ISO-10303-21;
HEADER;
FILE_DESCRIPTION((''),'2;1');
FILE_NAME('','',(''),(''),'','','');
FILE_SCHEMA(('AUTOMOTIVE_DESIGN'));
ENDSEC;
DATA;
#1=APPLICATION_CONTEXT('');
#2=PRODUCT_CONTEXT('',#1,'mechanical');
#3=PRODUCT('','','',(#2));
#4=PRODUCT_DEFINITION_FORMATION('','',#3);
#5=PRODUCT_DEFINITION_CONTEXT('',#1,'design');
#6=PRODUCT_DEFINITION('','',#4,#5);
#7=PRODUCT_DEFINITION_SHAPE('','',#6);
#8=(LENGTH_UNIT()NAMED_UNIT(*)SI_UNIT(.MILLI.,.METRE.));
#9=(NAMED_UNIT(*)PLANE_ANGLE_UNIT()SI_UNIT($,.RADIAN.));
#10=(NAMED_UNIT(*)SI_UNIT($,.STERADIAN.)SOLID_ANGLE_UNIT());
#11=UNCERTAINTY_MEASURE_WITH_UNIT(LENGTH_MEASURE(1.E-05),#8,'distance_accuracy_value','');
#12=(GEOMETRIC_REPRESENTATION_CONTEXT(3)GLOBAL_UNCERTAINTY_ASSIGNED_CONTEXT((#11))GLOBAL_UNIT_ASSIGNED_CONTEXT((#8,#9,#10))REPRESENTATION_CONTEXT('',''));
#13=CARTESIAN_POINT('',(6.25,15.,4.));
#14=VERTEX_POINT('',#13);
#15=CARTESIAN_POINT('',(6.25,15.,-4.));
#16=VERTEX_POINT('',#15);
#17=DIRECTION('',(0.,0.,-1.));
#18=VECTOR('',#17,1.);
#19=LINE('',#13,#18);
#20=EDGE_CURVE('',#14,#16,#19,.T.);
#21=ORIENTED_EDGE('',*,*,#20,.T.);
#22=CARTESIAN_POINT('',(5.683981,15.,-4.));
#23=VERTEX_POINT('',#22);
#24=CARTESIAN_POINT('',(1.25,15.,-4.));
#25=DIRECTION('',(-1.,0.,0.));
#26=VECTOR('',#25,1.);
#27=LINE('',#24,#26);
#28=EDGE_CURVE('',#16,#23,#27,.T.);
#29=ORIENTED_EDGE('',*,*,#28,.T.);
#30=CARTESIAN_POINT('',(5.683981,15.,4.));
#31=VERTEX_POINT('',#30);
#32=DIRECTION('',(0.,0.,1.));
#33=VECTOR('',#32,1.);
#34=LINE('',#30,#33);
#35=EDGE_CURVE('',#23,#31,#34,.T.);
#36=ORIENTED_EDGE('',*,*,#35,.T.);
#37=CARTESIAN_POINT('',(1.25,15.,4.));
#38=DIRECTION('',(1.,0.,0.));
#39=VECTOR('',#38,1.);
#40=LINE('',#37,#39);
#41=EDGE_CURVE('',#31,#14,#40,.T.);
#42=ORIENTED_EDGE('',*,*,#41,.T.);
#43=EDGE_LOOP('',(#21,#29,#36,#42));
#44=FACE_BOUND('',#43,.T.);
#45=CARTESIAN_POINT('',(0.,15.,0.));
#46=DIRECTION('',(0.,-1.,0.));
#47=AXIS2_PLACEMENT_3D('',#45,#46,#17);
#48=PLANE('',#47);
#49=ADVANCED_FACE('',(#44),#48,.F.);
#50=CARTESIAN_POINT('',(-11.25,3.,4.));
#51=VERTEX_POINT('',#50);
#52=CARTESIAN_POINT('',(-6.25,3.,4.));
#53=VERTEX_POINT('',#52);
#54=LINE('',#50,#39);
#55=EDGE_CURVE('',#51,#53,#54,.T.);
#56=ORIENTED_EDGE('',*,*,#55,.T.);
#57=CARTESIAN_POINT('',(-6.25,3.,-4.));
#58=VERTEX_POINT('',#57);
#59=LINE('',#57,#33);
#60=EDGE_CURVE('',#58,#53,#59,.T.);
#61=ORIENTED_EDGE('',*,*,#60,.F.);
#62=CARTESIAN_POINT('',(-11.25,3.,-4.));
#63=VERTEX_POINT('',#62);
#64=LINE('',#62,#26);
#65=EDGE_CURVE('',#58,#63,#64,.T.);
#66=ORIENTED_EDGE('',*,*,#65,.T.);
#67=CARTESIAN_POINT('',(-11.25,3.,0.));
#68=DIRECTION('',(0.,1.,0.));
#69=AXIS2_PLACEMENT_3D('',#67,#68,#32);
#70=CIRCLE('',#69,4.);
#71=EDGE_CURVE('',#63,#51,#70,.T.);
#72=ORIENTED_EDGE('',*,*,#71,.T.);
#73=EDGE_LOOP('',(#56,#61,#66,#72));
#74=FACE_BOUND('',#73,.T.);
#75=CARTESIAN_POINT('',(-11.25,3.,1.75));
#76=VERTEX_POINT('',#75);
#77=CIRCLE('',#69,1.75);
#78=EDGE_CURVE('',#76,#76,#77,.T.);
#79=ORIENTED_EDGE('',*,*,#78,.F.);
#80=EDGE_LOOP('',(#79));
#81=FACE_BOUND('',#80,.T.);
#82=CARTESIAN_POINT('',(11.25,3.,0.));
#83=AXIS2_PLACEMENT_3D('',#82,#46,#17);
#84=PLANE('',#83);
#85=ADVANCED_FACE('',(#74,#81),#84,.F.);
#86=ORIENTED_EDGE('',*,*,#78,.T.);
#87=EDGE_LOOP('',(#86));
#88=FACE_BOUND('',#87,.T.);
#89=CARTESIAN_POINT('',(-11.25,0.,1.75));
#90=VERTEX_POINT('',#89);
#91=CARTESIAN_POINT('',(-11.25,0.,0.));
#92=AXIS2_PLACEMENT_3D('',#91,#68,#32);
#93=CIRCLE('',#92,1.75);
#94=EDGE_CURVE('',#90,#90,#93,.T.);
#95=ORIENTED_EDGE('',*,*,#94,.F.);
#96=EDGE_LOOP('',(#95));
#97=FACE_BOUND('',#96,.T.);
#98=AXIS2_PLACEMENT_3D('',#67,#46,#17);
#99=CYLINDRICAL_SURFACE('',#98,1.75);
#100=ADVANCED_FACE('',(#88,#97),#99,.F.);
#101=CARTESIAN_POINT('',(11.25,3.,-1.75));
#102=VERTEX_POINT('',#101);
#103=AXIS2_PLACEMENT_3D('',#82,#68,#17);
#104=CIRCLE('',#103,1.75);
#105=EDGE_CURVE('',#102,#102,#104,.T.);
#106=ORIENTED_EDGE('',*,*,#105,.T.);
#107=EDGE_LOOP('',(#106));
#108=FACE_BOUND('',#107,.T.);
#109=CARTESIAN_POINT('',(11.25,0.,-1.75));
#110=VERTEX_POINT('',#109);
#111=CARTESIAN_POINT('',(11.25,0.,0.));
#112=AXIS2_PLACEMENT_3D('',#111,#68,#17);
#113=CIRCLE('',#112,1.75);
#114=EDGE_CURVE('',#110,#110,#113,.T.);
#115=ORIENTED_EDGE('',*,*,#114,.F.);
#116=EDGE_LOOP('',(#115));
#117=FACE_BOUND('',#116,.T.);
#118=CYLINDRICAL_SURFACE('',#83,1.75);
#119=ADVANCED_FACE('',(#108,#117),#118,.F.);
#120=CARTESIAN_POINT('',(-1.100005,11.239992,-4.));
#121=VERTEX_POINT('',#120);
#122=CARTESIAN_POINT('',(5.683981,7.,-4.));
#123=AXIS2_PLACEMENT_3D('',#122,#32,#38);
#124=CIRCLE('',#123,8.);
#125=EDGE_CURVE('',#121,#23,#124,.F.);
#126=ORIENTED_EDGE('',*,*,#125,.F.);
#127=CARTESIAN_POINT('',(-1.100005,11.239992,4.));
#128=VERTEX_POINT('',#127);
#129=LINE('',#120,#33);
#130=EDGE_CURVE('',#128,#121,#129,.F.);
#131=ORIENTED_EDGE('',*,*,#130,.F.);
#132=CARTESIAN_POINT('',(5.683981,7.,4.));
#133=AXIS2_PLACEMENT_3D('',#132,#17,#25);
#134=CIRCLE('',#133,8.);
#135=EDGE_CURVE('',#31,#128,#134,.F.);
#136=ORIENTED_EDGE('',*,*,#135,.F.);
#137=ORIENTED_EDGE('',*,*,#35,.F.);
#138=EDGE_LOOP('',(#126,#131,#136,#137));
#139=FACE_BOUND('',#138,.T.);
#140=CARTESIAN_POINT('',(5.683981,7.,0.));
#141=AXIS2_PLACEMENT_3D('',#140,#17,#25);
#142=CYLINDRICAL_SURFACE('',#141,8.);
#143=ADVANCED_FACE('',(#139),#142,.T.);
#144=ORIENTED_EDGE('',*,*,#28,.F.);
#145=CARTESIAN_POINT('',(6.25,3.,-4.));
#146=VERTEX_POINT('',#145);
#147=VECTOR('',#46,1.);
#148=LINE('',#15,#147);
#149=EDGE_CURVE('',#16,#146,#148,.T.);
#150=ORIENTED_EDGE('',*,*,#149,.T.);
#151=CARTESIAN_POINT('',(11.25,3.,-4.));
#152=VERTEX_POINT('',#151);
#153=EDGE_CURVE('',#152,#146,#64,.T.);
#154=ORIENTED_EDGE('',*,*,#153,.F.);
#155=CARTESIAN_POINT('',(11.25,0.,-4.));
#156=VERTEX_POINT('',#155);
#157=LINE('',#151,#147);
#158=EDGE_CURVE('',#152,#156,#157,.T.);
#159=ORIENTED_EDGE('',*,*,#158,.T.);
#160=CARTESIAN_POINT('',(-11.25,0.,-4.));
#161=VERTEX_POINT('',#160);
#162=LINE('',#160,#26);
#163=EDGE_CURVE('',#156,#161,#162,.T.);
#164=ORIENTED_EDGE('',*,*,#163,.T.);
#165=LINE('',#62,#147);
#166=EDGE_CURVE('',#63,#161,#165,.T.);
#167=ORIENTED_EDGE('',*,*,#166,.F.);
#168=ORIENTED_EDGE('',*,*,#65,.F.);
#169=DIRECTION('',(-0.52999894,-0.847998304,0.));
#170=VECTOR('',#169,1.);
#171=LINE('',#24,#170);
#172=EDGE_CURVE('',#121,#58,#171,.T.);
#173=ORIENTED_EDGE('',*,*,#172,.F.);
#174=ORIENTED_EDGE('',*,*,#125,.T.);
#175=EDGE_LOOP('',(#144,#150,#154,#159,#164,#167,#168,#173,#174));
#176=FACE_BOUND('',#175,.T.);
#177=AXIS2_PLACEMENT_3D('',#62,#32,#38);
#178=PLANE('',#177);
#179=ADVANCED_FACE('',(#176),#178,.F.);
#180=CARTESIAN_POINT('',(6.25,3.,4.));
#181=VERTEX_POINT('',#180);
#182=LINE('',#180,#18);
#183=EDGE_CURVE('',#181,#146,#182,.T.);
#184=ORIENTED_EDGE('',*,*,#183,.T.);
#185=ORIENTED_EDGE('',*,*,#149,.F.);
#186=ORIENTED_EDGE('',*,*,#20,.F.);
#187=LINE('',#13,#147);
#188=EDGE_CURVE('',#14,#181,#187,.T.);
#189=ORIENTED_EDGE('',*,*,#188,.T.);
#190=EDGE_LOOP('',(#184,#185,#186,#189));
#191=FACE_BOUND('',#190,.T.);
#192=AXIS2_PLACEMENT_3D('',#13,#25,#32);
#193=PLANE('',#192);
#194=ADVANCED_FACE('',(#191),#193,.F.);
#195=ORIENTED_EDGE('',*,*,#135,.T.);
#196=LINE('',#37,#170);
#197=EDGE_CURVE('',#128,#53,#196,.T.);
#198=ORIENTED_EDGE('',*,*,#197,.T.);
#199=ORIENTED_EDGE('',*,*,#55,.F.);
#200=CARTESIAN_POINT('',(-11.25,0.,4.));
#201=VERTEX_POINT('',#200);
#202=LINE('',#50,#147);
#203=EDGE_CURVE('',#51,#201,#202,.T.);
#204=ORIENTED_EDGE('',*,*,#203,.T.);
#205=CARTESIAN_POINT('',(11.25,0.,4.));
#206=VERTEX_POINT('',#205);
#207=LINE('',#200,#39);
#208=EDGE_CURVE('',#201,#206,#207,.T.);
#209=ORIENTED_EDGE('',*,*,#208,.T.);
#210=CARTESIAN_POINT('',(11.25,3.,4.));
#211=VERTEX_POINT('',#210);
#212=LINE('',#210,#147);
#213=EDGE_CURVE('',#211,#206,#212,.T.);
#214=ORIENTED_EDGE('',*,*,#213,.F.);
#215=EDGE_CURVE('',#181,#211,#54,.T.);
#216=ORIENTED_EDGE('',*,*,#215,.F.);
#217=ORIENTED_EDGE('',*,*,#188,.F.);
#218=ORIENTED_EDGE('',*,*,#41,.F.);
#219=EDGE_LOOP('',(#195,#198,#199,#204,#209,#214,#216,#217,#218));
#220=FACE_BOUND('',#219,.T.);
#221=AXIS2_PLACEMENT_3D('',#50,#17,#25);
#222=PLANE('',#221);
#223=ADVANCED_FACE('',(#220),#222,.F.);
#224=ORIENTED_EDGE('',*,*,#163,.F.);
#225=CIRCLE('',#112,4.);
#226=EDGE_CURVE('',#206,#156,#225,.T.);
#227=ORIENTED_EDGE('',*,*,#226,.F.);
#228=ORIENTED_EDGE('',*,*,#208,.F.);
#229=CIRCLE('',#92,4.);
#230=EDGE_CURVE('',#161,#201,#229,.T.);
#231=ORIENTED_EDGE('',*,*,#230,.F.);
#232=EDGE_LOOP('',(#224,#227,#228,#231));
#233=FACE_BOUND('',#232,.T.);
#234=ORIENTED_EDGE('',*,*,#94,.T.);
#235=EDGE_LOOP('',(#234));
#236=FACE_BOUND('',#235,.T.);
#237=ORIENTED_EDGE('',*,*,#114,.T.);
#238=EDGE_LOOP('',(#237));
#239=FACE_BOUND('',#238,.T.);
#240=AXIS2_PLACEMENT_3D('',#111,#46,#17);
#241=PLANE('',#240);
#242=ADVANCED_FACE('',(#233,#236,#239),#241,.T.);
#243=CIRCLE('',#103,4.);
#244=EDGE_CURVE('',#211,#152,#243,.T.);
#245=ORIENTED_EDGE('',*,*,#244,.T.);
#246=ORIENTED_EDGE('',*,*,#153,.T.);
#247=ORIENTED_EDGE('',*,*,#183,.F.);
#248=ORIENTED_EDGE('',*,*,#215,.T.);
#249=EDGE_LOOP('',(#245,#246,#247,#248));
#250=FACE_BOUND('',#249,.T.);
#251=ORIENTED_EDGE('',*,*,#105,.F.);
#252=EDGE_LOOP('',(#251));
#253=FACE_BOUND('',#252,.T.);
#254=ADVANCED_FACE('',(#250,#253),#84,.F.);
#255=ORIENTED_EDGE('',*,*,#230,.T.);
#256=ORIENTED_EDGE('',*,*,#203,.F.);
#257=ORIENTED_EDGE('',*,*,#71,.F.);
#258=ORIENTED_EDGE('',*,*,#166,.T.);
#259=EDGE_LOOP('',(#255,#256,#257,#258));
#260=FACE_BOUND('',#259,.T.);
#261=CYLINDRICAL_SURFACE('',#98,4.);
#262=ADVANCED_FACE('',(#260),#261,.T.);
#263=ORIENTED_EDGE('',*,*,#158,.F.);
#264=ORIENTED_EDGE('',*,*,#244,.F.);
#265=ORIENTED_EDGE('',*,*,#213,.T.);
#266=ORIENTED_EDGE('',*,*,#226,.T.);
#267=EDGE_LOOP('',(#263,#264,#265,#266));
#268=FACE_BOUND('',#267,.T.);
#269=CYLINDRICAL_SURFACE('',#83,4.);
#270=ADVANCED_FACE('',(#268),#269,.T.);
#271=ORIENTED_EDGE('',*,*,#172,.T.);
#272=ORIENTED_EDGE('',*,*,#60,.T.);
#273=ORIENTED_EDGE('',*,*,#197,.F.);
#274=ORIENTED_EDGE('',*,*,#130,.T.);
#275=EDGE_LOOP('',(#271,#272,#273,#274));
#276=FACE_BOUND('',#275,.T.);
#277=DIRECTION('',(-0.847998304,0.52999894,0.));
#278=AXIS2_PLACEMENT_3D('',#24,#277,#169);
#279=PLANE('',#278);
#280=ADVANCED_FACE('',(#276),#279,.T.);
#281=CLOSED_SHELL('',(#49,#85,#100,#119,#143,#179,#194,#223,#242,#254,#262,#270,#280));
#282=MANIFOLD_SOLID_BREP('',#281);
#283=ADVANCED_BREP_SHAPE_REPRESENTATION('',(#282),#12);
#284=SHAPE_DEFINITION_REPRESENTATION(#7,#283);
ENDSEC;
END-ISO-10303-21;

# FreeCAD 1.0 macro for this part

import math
import FreeCAD as App
import Part
import Sketcher

V = App.Vector
Q = App.Units.Quantity


def edges_at(feature, points):
    """Names of the edges that pass closest to the given points."""
    edges = feature.Shape.Edges
    near = lambda p: min(range(len(edges)), key=lambda i: edges[i].distToShape(Part.Vertex(*p))[0])
    return sorted({f"Edge{near(p) + 1}" for p in points})


def add_polygon(sketch, points):
    """Adds a closed chain of lines whose ends are joined by coincident constraints."""
    first, n = sketch.GeometryCount, len(points)
    for a, b in zip(points, points[1:] + points[:1]):
        sketch.addGeometry(Part.LineSegment(App.Vector(*a, 0), App.Vector(*b, 0)), False)
    for i in range(n):
        sketch.addConstraint(Sketcher.Constraint("Coincident", first + i, 2, first + (i + 1) % n, 1))

doc = App.newDocument("Part")
body = doc.addObject("PartDesign::Body", "Body")

sketch1 = body.newObject("Sketcher::SketchObject", "Sketch")
sketch1.AttachmentSupport = (doc.getObject("XZ_Plane"), [""])
sketch1.MapMode = "FlatFace"
sketch1.addGeometry([
    Part.LineSegment(V(-11.2, 4, 0), V(11.2, 4, 0)),
    Part.ArcOfCircle(Part.Circle(V(11.2, 0, 0), V(0, 0, 1), 4), math.radians(-90), math.radians(90)),
    Part.LineSegment(V(11.2, -4, 0), V(-11.2, -4, 0)),
    Part.ArcOfCircle(Part.Circle(V(-11.2, 0, 0), V(0, 0, 1), 4), math.radians(90), math.radians(270)),
    Part.Circle(V(-11.2, 0, 0), V(0, 0, 1), 1.8),
    Part.Circle(V(11.2, 0, 0), V(0, 0, 1), 1.8),
], False)
sketch1.addConstraint([
    Sketcher.Constraint("Tangent", 0, 2, 1, 2),
    Sketcher.Constraint("Tangent", 1, 1, 2, 1),
    Sketcher.Constraint("Tangent", 2, 2, 3, 2),
    Sketcher.Constraint("Tangent", 3, 1, 0, 1),
    Sketcher.Constraint("Horizontal", 0),
    Sketcher.Constraint("Horizontal", 2),
    Sketcher.Constraint("Coincident", 4, 3, 3, 3),
    Sketcher.Constraint("Coincident", 5, 3, 1, 3),
    Sketcher.Constraint("Equal", 4, 5),
    Sketcher.Constraint("Symmetric", 1, 3, 3, 3, -1, 1),
    Sketcher.Constraint("Radius", 1, Q("4 mm")),
    Sketcher.Constraint("Diameter", 4, Q("3.5 mm")),
    Sketcher.Constraint("DistanceX", 0, 1, 0, 2, Q("22.5 mm")),
])
pad1 = body.newObject("PartDesign::Pad", "Pad")
pad1.Profile = sketch1
pad1.Length = 3
pad1.Reversed = True

sketch2 = body.newObject("Sketcher::SketchObject", "Sketch001")
sketch2.AttachmentSupport = (doc.getObject("XZ_Plane"), [""])
sketch2.MapMode = "FlatFace"
sketch2.AttachmentOffset = App.Placement(V(0, 0, -3), App.Rotation())
add_polygon(sketch2, [(1, -4), (1, 4), (6, 4), (6, -4)])
sketch2.addConstraint([
    Sketcher.Constraint("Vertical", 0),
    Sketcher.Constraint("Horizontal", 1),
    Sketcher.Constraint("Vertical", 2),
    Sketcher.Constraint("Horizontal", 3),
    Sketcher.Constraint("DistanceX", 1, 1, 1, 2, Q("5 mm")),
    Sketcher.Constraint("DistanceY", 0, 1, 0, 2, Q("8 mm")),
    Sketcher.Constraint("DistanceY", -1, 1, 0, 2, Q("4 mm")),
    Sketcher.Constraint("DistanceX", -1, 1, 0, 2, Q("1.25 mm")),
])
pad2 = body.newObject("PartDesign::Pad", "Pad001")
pad2.Profile = sketch2
pad2.Length = 12
pad2.Reversed = True

sketch3 = body.newObject("Sketcher::SketchObject", "Sketch002")
sketch3.AttachmentSupport = (doc.getObject("XY_Plane"), [""])
sketch3.MapMode = "FlatFace"
sketch3.AttachmentOffset = App.Placement(V(0, 0, 4), App.Rotation())
add_polygon(sketch3, [(1, 15), (-6, 3), (1, 3)])
sketch3.addConstraint([
    Sketcher.Constraint("Horizontal", 1),
    Sketcher.Constraint("Vertical", 2),
    Sketcher.Constraint("DistanceY", 2, 1, 2, 2, Q("12 mm")),
    Sketcher.Constraint("DistanceX", 1, 1, 1, 2, Q("7.5 mm")),
    Sketcher.Constraint("DistanceY", -1, 1, 0, 2, Q("3 mm")),
    Sketcher.Constraint("DistanceX", 0, 2, -1, 1, Q("6.25 mm")),
])
pad3 = body.newObject("PartDesign::Pad", "Pad002")
pad3.Profile = sketch3
pad3.Length = 8
pad3.Reversed = True
doc.recompute()

fillet = body.newObject("PartDesign::Fillet", "Fillet")
fillet.Base = (pad3, edges_at(pad3, [(1.25, 15, 0)]))
fillet.Radius = 8

doc.recompute()
